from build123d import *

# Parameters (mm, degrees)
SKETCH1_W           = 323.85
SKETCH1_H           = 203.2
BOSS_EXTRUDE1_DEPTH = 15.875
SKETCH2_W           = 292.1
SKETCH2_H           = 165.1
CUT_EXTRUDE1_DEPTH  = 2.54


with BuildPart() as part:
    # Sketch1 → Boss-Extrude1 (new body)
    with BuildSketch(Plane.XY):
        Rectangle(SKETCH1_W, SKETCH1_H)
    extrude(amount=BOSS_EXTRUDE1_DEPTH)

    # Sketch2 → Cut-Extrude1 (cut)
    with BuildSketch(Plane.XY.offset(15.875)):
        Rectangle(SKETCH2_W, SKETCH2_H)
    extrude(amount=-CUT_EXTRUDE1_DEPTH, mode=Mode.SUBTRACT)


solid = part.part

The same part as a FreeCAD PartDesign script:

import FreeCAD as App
import Part
import Sketcher

V = App.Vector
Q = App.Units.Quantity


def add_polygon(sketch, points):
    """Adds a closed chain of lines whose ends are joined by coincident constraints."""
    first, n = sketch.GeometryCount, len(points)
    for a, b in zip(points, points[1:] + points[:1]):
        sketch.addGeometry(Part.LineSegment(App.Vector(*a, 0), App.Vector(*b, 0)), False)
    for i in range(n):
        sketch.addConstraint(Sketcher.Constraint("Coincident", first + i, 2, first + (i + 1) % n, 1))

doc = App.newDocument("Part")
body = doc.addObject("PartDesign::Body", "Body")

sketch1 = body.newObject("Sketcher::SketchObject", "Sketch")
sketch1.AttachmentSupport = (doc.getObject("XY_Plane"), [""])
sketch1.MapMode = "FlatFace"
add_polygon(sketch1, [(-161.925, 101.6), (-161.925, -101.6), (161.925, -101.6), (161.925, 101.6)])
sketch1.addConstraint(Sketcher.Constraint("Vertical", 0))
sketch1.addConstraint(Sketcher.Constraint("Horizontal", 1))
sketch1.addConstraint(Sketcher.Constraint("Vertical", 2))
sketch1.addConstraint(Sketcher.Constraint("Horizontal", 3))
sketch1.addConstraint(Sketcher.Constraint("Symmetric", 0, 2, 2, 2, -1, 1))
sketch1.addConstraint(Sketcher.Constraint("DistanceY", 0, 2, 0, 1, Q("8 in")))
sketch1.addConstraint(Sketcher.Constraint("DistanceX", 1, 1, 1, 2, Q("12.75 in")))
pad1 = body.newObject("PartDesign::Pad", "Pad")
pad1.Profile = sketch1
pad1.Length = Q("0.625 in")

sketch2 = body.newObject("Sketcher::SketchObject", "Sketch001")
sketch2.AttachmentSupport = (doc.getObject("XY_Plane"), [""])
sketch2.MapMode = "FlatFace"
sketch2.AttachmentOffset = App.Placement(V(0, 0, 0.625 * 25.4), App.Rotation())
add_polygon(sketch2, [(-146.05, 82.55), (-146.05, -82.55), (146.05, -82.55), (146.05, 82.55)])
sketch2.addConstraint(Sketcher.Constraint("Vertical", 0))
sketch2.addConstraint(Sketcher.Constraint("Horizontal", 1))
sketch2.addConstraint(Sketcher.Constraint("Vertical", 2))
sketch2.addConstraint(Sketcher.Constraint("Horizontal", 3))
sketch2.addConstraint(Sketcher.Constraint("Symmetric", 0, 2, 2, 2, -1, 1))
sketch2.addConstraint(Sketcher.Constraint("DistanceX", 1, 1, 1, 2, Q("11.5 in")))
sketch2.addConstraint(Sketcher.Constraint("DistanceY", 0, 2, 0, 1, Q("6.5 in")))
pocket1 = body.newObject("PartDesign::Pocket", "Pocket")
pocket1.Profile = sketch2
pocket1.Length = Q("0.1 in")

doc.recompute()
